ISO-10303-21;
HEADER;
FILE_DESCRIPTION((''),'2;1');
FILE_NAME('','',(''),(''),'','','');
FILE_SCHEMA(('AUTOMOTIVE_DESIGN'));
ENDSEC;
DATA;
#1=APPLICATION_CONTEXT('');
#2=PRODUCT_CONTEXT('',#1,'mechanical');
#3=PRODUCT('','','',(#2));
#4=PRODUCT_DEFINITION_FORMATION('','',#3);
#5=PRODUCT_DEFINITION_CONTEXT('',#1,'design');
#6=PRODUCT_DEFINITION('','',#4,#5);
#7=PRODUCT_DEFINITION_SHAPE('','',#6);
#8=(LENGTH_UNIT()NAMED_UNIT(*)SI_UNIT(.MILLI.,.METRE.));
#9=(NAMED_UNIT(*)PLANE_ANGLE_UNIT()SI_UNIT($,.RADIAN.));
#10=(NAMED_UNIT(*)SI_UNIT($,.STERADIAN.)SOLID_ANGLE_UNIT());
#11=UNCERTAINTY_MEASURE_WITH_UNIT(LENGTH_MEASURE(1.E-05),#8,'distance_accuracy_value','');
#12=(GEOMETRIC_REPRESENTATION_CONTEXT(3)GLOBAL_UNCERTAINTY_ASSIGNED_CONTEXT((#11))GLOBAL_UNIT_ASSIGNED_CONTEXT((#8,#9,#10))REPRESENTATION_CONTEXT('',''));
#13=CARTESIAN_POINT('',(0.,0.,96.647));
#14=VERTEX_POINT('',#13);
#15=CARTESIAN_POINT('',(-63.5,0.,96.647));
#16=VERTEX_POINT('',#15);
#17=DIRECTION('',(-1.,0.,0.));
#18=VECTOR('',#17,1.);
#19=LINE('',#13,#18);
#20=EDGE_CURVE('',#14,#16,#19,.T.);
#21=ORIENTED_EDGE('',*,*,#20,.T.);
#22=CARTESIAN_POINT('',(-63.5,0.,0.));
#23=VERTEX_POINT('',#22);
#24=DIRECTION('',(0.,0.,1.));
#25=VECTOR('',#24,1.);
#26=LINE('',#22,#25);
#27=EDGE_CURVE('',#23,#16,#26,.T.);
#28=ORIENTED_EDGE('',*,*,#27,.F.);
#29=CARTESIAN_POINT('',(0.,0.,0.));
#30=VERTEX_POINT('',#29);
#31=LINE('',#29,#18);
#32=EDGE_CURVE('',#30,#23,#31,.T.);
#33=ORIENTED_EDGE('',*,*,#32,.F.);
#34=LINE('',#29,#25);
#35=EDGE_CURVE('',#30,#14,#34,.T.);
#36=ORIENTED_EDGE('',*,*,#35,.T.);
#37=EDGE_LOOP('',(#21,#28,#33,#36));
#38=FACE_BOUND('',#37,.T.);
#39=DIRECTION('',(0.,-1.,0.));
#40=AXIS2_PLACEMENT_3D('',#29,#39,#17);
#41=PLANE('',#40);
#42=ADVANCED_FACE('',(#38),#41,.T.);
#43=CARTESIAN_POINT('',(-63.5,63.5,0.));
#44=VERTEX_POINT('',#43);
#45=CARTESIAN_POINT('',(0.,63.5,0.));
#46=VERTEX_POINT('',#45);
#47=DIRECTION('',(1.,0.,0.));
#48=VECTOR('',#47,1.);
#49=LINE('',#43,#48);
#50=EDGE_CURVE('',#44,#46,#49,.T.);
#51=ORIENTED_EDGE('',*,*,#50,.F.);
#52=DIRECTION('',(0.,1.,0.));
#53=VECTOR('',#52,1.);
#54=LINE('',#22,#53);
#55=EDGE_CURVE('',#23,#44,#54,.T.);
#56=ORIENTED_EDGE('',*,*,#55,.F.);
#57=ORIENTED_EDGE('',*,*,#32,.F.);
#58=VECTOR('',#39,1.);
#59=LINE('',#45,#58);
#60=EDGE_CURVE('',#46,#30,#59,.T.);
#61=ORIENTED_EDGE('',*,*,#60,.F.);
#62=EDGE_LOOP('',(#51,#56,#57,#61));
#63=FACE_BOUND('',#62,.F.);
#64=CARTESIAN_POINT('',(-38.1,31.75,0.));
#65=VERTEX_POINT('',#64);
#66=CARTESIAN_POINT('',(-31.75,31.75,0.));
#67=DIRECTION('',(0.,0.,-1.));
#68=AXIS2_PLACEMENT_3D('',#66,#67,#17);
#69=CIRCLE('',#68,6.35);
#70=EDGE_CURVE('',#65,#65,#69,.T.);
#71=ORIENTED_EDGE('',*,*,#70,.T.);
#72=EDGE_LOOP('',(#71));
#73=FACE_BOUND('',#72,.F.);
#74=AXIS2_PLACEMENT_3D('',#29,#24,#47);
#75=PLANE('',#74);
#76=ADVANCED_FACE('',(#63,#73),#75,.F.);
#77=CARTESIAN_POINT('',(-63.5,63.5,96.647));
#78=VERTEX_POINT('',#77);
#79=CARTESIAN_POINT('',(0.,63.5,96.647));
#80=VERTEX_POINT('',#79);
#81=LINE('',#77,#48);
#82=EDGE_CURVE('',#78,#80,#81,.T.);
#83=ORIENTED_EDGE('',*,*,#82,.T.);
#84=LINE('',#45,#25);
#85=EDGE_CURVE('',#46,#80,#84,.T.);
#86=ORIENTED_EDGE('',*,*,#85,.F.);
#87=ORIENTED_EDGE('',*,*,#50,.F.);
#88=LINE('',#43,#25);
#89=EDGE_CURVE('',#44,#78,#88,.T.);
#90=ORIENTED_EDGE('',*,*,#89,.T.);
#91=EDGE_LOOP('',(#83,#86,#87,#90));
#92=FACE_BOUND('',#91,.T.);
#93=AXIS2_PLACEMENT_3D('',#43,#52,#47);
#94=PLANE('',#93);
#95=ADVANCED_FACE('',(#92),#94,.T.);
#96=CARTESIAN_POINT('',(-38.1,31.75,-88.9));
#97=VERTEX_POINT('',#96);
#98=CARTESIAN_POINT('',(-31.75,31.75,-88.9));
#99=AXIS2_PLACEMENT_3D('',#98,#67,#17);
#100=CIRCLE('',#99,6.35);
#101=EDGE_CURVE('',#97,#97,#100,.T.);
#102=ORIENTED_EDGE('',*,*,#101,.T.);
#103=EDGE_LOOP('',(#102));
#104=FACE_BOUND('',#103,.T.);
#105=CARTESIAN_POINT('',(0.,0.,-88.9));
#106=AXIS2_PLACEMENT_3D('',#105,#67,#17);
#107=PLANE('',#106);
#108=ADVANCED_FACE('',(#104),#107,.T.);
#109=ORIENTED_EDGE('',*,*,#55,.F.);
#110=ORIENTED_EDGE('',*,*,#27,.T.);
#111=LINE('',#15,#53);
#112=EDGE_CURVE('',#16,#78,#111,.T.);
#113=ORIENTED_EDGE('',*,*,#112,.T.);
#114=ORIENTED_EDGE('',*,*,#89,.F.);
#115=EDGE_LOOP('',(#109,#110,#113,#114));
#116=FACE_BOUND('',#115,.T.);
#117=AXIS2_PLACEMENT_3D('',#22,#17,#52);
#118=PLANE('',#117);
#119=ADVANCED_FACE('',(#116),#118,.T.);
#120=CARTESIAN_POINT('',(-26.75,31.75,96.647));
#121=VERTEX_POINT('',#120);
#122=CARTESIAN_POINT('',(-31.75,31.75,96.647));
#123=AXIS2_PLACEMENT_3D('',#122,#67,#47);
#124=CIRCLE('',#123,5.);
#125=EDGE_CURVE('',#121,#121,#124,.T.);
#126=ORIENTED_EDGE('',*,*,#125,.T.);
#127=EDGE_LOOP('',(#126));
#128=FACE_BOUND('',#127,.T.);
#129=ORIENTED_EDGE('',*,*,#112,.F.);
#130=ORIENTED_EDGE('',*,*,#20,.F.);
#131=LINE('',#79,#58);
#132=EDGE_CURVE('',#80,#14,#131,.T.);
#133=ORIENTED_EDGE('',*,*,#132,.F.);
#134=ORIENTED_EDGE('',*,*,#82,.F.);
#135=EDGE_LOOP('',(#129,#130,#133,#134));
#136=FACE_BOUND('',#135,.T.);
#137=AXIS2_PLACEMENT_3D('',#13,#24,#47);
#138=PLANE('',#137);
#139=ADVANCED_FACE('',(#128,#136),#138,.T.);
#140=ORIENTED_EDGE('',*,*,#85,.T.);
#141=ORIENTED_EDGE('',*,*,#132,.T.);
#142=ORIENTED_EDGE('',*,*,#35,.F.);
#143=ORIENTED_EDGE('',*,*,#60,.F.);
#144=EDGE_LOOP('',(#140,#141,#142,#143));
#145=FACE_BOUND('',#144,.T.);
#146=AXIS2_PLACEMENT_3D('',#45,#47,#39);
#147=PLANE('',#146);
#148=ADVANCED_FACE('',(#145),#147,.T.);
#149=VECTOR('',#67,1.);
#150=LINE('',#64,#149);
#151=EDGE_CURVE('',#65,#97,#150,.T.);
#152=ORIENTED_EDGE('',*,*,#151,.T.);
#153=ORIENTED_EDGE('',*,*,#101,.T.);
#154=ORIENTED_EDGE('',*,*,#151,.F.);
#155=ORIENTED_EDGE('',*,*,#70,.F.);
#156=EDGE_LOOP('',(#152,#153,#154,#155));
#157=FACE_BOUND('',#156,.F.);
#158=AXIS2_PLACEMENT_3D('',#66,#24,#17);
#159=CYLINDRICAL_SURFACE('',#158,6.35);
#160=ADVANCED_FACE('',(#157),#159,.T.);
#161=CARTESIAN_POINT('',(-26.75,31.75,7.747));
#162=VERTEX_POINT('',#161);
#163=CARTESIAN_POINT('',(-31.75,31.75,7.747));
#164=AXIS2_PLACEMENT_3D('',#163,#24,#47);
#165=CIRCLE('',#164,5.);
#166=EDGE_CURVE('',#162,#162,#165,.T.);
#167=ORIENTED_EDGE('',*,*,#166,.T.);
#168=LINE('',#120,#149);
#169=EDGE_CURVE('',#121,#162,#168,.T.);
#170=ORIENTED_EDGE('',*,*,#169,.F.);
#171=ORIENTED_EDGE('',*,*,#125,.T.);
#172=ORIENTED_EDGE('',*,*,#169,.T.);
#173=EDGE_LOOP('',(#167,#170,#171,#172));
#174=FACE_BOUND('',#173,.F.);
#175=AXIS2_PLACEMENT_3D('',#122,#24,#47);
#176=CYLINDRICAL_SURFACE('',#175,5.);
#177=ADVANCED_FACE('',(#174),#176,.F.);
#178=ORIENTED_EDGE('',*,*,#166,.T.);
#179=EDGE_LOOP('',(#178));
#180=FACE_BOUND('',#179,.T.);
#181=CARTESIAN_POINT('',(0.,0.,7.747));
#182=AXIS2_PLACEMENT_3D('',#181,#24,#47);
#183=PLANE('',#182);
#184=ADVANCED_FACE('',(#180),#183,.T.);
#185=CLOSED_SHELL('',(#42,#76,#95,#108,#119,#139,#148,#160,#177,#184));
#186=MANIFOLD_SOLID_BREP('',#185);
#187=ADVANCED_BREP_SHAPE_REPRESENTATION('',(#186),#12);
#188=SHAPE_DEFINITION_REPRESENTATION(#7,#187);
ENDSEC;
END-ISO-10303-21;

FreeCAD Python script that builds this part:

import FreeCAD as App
import Part
import Sketcher
Q = App.Units.Quantity


def add_polygon(sketch, points):
    """Adds a closed chain of lines whose ends are joined by coincident constraints."""
    first, n = sketch.GeometryCount, len(points)
    for a, b in zip(points, points[1:] + points[:1]):
        sketch.addGeometry(Part.LineSegment(App.Vector(*a, 0), App.Vector(*b, 0)), False)
    for i in range(n):
        sketch.addConstraint(Sketcher.Constraint("Coincident", first + i, 2, first + (i + 1) % n, 1))

doc = App.newDocument("Part")
params = doc.addObject("Spreadsheet::Sheet", "Params")
for row, (alias, value) in enumerate([
    ("sketch1_width", "2.5 in"),
    ("pad1_length", "3.805 in"),
    ("sketch2_diameter", "0.5 in"),
    ("pad2_length", "3.5 in"),
    ("pocket1_length", "3.5 in"),
], start=1):
    params.set(f"A{row}", alias)
    params.set(f"B{row}", "=" + value)
    params.setAlias(f"B{row}", alias)

body = doc.addObject("PartDesign::Body", "Body")

# Sketch on XY plane
sketch1 = doc.addObject("Sketcher::SketchObject", "Sketch")
body.addObject(sketch1)
sketch1.AttachmentSupport = (doc.XY_Plane, [""])
sketch1.MapMode = "FlatFace"
add_polygon(sketch1, [(-64, 0), (0, 0), (0, 64), (-64, 64)])  # lines 0-3
sketch1.addConstraint(Sketcher.Constraint("Horizontal", 0))
sketch1.addConstraint(Sketcher.Constraint("Vertical", 1))
sketch1.addConstraint(Sketcher.Constraint("Horizontal", 2))
sketch1.addConstraint(Sketcher.Constraint("Vertical", 3))
sketch1.addConstraint(Sketcher.Constraint("Coincident", 0, 2, -1, 1))
sketch1.addConstraint(Sketcher.Constraint("Equal", 2, 1))
sketch1.addConstraint(Sketcher.Constraint("DistanceX", 0, 1, 0, 2, Q("2.5 in")))
sketch1.setExpression("Constraints[10]", "Params.sketch1_width")
pad1 = doc.addObject("PartDesign::Pad", "Pad")
body.addObject(pad1)
pad1.Profile = sketch1
pad1.setExpression("Length", "Params.pad1_length")

# Sketch on XY plane
sketch2 = doc.addObject("Sketcher::SketchObject", "Sketch001")
body.addObject(sketch2)
sketch2.AttachmentSupport = (doc.XY_Plane, [""])
sketch2.MapMode = "FlatFace"
sketch2.addGeometry(Part.Circle(App.Vector(-32, 32, 0), App.Vector(0, 0, 1), 6), False)
sketch2.addConstraint(Sketcher.Constraint("Diameter", 0, Q("0.5 in")))
sketch2.addConstraint(Sketcher.Constraint("DistanceX", 0, 3, -1, 1, Q("1.25 in")))
sketch2.addConstraint(Sketcher.Constraint("DistanceY", -1, 1, 0, 3, Q("1.25 in")))
sketch2.setExpression("Constraints[0]", "Params.sketch2_diameter")
pad2 = doc.addObject("PartDesign::Pad", "Pad001")
body.addObject(pad2)
pad2.Profile = sketch2
pad2.setExpression("Length", "Params.pad2_length")
pad2.Reversed = True

# Sketch on XY plane
sketch3 = doc.addObject("Sketcher::SketchObject", "Sketch002")
body.addObject(sketch3)
sketch3.AttachmentSupport = (doc.XY_Plane, [""])
sketch3.MapMode = "FlatFace"
sketch3.AttachmentOffset = App.Placement(App.Vector(0, 0, 3.805 * 25.4), App.Rotation())
sketch3.addGeometry(Part.Circle(App.Vector(-32, 32, 0), App.Vector(0, 0, 1), 5), False)
sketch3.addConstraint(Sketcher.Constraint("Diameter", 0, Q("0.3937 in")))
sketch3.addConstraint(Sketcher.Constraint("DistanceX", 0, 3, -1, 1, Q("1.25 in")))
sketch3.addConstraint(Sketcher.Constraint("DistanceY", -1, 1, 0, 3, Q("1.25 in")))
pocket1 = doc.addObject("PartDesign::Pocket", "Pocket")
body.addObject(pocket1)
pocket1.Profile = sketch3
pocket1.setExpression("Length", "Params.pocket1_length")

doc.recompute()
